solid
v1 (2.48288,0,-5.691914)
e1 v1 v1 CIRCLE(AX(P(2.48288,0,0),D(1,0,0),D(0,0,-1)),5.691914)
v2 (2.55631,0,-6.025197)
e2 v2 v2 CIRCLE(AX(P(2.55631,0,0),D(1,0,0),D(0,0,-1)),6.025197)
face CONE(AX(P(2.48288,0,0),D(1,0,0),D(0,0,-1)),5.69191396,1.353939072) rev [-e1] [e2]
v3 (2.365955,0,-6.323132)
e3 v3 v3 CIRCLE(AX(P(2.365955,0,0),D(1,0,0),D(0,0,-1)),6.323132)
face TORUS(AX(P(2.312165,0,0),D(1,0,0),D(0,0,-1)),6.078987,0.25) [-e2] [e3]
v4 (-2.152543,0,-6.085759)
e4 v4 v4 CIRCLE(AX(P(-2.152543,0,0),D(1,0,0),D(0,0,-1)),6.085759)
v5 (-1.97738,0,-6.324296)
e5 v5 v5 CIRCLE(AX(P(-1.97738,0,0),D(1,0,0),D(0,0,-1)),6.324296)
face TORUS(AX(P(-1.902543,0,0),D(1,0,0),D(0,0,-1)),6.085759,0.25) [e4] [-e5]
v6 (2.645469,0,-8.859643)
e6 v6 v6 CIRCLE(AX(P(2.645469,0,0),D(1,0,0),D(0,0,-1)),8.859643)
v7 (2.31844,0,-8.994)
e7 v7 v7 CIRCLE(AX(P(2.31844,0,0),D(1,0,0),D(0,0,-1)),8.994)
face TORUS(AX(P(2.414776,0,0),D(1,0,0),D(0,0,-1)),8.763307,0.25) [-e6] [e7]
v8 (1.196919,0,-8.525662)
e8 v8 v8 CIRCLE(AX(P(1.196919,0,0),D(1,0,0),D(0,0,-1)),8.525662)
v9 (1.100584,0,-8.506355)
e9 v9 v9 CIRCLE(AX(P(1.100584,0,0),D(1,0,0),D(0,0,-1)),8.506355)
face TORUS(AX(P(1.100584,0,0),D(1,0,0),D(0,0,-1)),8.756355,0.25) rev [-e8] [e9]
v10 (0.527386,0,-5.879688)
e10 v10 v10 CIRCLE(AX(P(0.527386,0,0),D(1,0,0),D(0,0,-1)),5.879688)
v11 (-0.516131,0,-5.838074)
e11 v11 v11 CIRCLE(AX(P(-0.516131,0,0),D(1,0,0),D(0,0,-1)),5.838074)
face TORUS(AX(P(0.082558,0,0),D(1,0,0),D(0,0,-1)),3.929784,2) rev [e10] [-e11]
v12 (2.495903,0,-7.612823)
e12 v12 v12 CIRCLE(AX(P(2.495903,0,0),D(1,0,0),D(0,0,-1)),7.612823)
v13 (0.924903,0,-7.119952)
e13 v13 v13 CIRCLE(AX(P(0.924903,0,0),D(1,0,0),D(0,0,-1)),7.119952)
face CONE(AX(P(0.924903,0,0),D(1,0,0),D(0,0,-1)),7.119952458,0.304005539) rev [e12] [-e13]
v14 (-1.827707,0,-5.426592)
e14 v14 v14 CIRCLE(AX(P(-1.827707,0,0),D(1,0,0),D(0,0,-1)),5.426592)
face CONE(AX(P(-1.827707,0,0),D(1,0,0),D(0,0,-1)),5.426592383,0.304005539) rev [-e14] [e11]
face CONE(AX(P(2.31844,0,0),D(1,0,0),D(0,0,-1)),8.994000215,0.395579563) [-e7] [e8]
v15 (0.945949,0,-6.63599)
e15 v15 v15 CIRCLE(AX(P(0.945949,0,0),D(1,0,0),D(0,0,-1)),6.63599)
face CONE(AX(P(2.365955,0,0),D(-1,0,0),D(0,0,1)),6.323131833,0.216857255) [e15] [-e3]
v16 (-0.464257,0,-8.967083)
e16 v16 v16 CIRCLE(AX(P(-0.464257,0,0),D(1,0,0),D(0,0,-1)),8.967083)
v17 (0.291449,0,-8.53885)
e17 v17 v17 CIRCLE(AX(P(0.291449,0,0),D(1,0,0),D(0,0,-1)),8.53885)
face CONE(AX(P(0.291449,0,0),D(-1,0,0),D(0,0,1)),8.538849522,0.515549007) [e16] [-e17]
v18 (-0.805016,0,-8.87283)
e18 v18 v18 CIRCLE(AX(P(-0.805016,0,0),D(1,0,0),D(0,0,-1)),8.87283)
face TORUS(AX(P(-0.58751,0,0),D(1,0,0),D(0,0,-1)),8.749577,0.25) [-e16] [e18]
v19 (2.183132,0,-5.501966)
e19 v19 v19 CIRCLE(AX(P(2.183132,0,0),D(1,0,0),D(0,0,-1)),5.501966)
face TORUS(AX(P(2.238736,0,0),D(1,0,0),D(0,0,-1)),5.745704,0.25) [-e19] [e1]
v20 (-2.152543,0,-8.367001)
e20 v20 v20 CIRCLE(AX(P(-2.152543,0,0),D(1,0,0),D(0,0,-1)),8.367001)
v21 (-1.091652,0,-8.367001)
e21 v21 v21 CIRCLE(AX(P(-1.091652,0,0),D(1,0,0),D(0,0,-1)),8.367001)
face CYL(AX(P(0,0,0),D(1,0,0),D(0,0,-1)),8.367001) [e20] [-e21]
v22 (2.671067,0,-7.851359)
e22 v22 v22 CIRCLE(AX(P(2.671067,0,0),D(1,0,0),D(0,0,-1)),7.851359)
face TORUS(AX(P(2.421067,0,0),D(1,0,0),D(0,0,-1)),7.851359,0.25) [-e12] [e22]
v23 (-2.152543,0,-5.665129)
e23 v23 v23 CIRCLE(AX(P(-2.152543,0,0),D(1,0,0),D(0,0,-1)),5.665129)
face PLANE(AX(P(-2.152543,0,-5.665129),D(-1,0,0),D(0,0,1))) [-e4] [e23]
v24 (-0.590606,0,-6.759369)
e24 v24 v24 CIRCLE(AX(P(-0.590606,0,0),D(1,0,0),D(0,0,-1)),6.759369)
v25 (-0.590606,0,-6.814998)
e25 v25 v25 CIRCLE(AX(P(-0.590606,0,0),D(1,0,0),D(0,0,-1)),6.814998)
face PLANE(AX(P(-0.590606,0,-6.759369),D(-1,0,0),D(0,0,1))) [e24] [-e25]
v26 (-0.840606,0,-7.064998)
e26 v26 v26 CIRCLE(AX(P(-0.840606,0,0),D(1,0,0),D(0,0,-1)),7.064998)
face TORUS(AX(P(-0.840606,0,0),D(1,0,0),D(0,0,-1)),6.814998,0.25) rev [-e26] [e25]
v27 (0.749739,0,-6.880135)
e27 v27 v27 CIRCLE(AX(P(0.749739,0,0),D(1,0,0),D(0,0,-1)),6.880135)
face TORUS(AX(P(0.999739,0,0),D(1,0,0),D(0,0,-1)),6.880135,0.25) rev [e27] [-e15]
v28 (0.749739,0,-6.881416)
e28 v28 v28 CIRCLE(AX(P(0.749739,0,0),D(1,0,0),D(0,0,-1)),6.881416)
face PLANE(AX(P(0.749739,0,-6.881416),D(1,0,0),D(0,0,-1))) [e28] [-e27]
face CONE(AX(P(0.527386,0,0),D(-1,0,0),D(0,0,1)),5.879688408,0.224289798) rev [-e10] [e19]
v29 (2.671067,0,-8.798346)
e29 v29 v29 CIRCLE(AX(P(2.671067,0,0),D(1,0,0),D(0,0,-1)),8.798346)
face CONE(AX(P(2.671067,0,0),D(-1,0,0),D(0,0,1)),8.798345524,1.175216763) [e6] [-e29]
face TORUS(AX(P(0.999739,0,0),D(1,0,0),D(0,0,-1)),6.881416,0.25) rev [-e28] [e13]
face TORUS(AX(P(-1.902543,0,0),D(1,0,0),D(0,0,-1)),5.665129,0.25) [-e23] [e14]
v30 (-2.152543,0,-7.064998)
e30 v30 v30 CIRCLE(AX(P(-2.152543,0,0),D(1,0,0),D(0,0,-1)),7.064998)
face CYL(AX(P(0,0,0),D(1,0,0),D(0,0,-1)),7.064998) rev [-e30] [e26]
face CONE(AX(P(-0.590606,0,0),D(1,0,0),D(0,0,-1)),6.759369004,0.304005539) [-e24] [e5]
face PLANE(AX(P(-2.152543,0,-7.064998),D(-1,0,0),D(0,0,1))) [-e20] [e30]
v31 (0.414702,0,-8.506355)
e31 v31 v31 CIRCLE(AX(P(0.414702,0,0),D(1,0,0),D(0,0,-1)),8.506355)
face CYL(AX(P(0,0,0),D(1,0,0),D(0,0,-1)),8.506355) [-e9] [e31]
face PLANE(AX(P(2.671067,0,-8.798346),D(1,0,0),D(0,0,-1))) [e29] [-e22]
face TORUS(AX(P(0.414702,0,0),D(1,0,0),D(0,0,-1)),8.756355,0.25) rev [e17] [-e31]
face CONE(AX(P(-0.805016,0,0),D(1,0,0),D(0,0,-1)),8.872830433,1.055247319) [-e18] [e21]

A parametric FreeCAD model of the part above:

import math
import FreeCAD as App
import Part
import Sketcher

V = App.Vector

doc = App.newDocument("Part")
body = doc.addObject("PartDesign::Body", "Body")

sketch1 = body.newObject("Sketcher::SketchObject", "Sketch")
sketch1.AttachmentSupport = (doc.getObject("XZ_Plane"), [""])
sketch1.MapMode = "FlatFace"
sketch1.addGeometry([
    Part.LineSegment(V(-1.0917, -8.367, 0), V(-2.1525, -8.367, 0)),
    Part.LineSegment(V(-2.1525, -8.367, 0), V(-2.1525, -7.065, 0)),
    Part.LineSegment(V(-2.1525, -7.065, 0), V(-0.8406, -7.065, 0)),
    Part.ArcOfCircle(Part.Circle(V(-0.8406, -6.815, 0), V(0, 0, 1), 0.25), math.radians(-90), math.radians(0)),
    Part.LineSegment(V(-0.5906, -6.815, 0), V(-0.5906, -6.7594, 0)),
    Part.LineSegment(V(-0.5906, -6.7594, 0), V(-1.9774, -6.3243, 0)),
    Part.ArcOfCircle(Part.Circle(V(-1.9025, -6.0858, 0), V(0, 0, 1), 0.25), math.radians(180), math.radians(253)),
    Part.LineSegment(V(-2.1525, -6.0858, 0), V(-2.1525, -5.6651, 0)),
    Part.ArcOfCircle(Part.Circle(V(-1.9025, -5.6651, 0), V(0, 0, 1), 0.25), math.radians(73), math.radians(180)),
    Part.LineSegment(V(-1.8277, -5.4266, 0), V(-0.5161, -5.8381, 0)),
    Part.ArcOfCircle(Part.Circle(V(0.0826, -3.9298, 0), V(0, 0, 1), 2), math.radians(-107), math.radians(-77)),
    Part.LineSegment(V(0.5274, -5.8797, 0), V(2.1831, -5.502, 0)),
    Part.ArcOfCircle(Part.Circle(V(2.2387, -5.7457, 0), V(0, 0, 1), 0.25), math.radians(12), math.radians(103)),
    Part.LineSegment(V(2.4829, -5.6919, 0), V(2.5563, -6.0252, 0)),
    Part.ArcOfCircle(Part.Circle(V(2.3122, -6.079, 0), V(0, 0, 1), 0.25), math.radians(-78), math.radians(12)),
    Part.LineSegment(V(2.366, -6.3231, 0), V(0.9459, -6.636, 0)),
    Part.ArcOfCircle(Part.Circle(V(0.9997, -6.8801, 0), V(0, 0, 1), 0.25), math.radians(102), math.radians(180)),
    Part.LineSegment(V(0.7497, -6.8801, 0), V(0.7497, -6.8814, 0)),
    Part.ArcOfCircle(Part.Circle(V(0.9997, -6.8814, 0), V(0, 0, 1), 0.25), math.radians(180), math.radians(253)),
    Part.LineSegment(V(0.9249, -7.12, 0), V(2.4959, -7.6128, 0)),
    Part.ArcOfCircle(Part.Circle(V(2.4211, -7.8514, 0), V(0, 0, 1), 0.25), math.radians(0), math.radians(73)),
    Part.LineSegment(V(2.6711, -7.8514, 0), V(2.6711, -8.7983, 0)),
    Part.LineSegment(V(2.6711, -8.7983, 0), V(2.6455, -8.8596, 0)),
    Part.ArcOfCircle(Part.Circle(V(2.4148, -8.7633, 0), V(0, 0, 1), 0.25), math.radians(-113), math.radians(-23)),
    Part.LineSegment(V(2.3184, -8.994, 0), V(1.1969, -8.5257, 0)),
    Part.ArcOfCircle(Part.Circle(V(1.1006, -8.7564, 0), V(0, 0, 1), 0.25), math.radians(67), math.radians(90)),
    Part.LineSegment(V(1.1006, -8.5064, 0), V(0.4147, -8.5064, 0)),
    Part.ArcOfCircle(Part.Circle(V(0.4147, -8.7564, 0), V(0, 0, 1), 0.25), math.radians(90), math.radians(120)),
    Part.LineSegment(V(0.2914, -8.5388, 0), V(-0.4643, -8.9671, 0)),
    Part.ArcOfCircle(Part.Circle(V(-0.5875, -8.7496, 0), V(0, 0, 1), 0.25), math.radians(-150), math.radians(-60)),
    Part.LineSegment(V(-0.805, -8.8728, 0), V(-1.0917, -8.367, 0)),
], False)
sketch1.addConstraint([
    Sketcher.Constraint("Coincident", 0, 2, 1, 1),
    Sketcher.Constraint("Coincident", 1, 2, 2, 1),
    Sketcher.Constraint("Tangent", 2, 2, 3, 1),
    Sketcher.Constraint("Tangent", 3, 2, 4, 1),
    Sketcher.Constraint("Coincident", 4, 2, 5, 1),
    Sketcher.Constraint("Tangent", 5, 2, 6, 2),
    Sketcher.Constraint("Tangent", 6, 1, 7, 1),
    Sketcher.Constraint("Tangent", 7, 2, 8, 2),
    Sketcher.Constraint("Tangent", 8, 1, 9, 1),
    Sketcher.Constraint("Tangent", 9, 2, 10, 1),
    Sketcher.Constraint("Tangent", 10, 2, 11, 1),
    Sketcher.Constraint("Tangent", 11, 2, 12, 2),
    Sketcher.Constraint("Tangent", 12, 1, 13, 1),
    Sketcher.Constraint("Tangent", 13, 2, 14, 2),
    Sketcher.Constraint("Tangent", 14, 1, 15, 1),
    Sketcher.Constraint("Tangent", 15, 2, 16, 1),
    Sketcher.Constraint("Tangent", 16, 2, 17, 1),
    Sketcher.Constraint("Coincident", 17, 2, 18, 1),
    Sketcher.Constraint("Tangent", 18, 2, 19, 1),
    Sketcher.Constraint("Tangent", 19, 2, 20, 2),
    Sketcher.Constraint("Tangent", 20, 1, 21, 1),
    Sketcher.Constraint("Coincident", 21, 2, 22, 1),
    Sketcher.Constraint("Tangent", 22, 2, 23, 2),
    Sketcher.Constraint("Tangent", 23, 1, 24, 1),
    Sketcher.Constraint("Tangent", 24, 2, 25, 1),
    Sketcher.Constraint("Tangent", 25, 2, 26, 1),
    Sketcher.Constraint("Tangent", 26, 2, 27, 1),
    Sketcher.Constraint("Tangent", 27, 2, 28, 1),
    Sketcher.Constraint("Tangent", 28, 2, 29, 2),
    Sketcher.Constraint("Tangent", 29, 1, 30, 1),
    Sketcher.Constraint("Coincident", 30, 2, 0, 1),
    Sketcher.Constraint("Horizontal", 0),
    Sketcher.Constraint("Vertical", 1),
    Sketcher.Constraint("Horizontal", 2),
    Sketcher.Constraint("Vertical", 4),
    Sketcher.Constraint("Vertical", 7),
    Sketcher.Constraint("Vertical", 21),
    Sketcher.Constraint("Horizontal", 26),
    Sketcher.Constraint("Equal", 3, 6),
    Sketcher.Constraint("Equal", 6, 8),
    Sketcher.Constraint("Equal", 8, 12),
    Sketcher.Constraint("Equal", 12, 14),
    Sketcher.Constraint("Equal", 14, 16),
    Sketcher.Constraint("Equal", 16, 18),
    Sketcher.Constraint("Equal", 18, 20),
    Sketcher.Constraint("Equal", 20, 23),
    Sketcher.Constraint("Equal", 23, 25),
    Sketcher.Constraint("Equal", 25, 27),
    Sketcher.Constraint("Equal", 27, 29),
    Sketcher.Constraint("Parallel", 5, 9),
    Sketcher.Constraint("Perpendicular", 13, 15),
    Sketcher.Constraint("Parallel", 9, 19),
    Sketcher.Constraint("Perpendicular", 22, 24),
    Sketcher.Constraint("Perpendicular", 28, 30),
    Sketcher.Constraint("Horizontal", 18, 3, 17, 2),
    Sketcher.Constraint("Vertical", 1, 2, 6, 1),
    Sketcher.Constraint("Radius", 10, 2.0),
    Sketcher.Constraint("Radius", 3, 0.25),
    Sketcher.Constraint("DistanceY", 3, 3, -1, 1, 6.814998),
    Sketcher.Constraint("DistanceY", 0, 2, -1, 1, 8.367001),
    Sketcher.Constraint("DistanceY", 23, 1, -1, 1, 8.994),
    Sketcher.Constraint("Distance", 19, 1.6465),
    Sketcher.Constraint("Distance", 30, 0.581398),
    Sketcher.Constraint("DistanceX", 0, 2, 0, 1, 1.060891),
    Sketcher.Constraint("DistanceX", 26, 2, 26, 1, 0.685881),
    Sketcher.Constraint("DistanceY", 4, 1, 4, 2, 0.055629),
    Sketcher.Constraint("DistanceY", 7, 1, 7, 2, 0.420631),
    Sketcher.Constraint("DistanceY", 17, 2, 17, 1, 0.001281),
    Sketcher.Constraint("DistanceX", 8, 3, 10, 3, 1.985102),
    Sketcher.Constraint("DistanceX", 14, 3, 20, 3, 0.108901),
    Sketcher.Constraint("DistanceY", 15, 2, 10, 2, 0.756302),
    Sketcher.Constraint("Distance", 5, 1.45342),
    Sketcher.Constraint("Distance", 9, 1.374609),
    Sketcher.Constraint("Distance", 24, 1.215381),
    Sketcher.Constraint("DistanceY", 21, 2, 21, 1, 0.946986),
    Sketcher.Constraint("DistanceX", -1, 1, 10, 3, 0.082558),
    Sketcher.Constraint("DistanceX", -1, 1, 16, 3, 0.999739),
    Sketcher.Constraint("DistanceY", 20, 3, -1, 1, 7.851359),
    Sketcher.Constraint("DistanceX", 29, 3, -1, 1, 0.58751),
    Sketcher.Constraint("DistanceY", 10, 2, -1, 1, 5.879688),
    Sketcher.Constraint("DistanceX", -1, 1, 12, 1, 2.48288),
])
revolution = body.newObject("PartDesign::Revolution", "Revolution")
revolution.Profile = sketch1
revolution.ReferenceAxis = (sketch1, ["H_Axis"])
revolution.Angle = 360

doc.recompute()
